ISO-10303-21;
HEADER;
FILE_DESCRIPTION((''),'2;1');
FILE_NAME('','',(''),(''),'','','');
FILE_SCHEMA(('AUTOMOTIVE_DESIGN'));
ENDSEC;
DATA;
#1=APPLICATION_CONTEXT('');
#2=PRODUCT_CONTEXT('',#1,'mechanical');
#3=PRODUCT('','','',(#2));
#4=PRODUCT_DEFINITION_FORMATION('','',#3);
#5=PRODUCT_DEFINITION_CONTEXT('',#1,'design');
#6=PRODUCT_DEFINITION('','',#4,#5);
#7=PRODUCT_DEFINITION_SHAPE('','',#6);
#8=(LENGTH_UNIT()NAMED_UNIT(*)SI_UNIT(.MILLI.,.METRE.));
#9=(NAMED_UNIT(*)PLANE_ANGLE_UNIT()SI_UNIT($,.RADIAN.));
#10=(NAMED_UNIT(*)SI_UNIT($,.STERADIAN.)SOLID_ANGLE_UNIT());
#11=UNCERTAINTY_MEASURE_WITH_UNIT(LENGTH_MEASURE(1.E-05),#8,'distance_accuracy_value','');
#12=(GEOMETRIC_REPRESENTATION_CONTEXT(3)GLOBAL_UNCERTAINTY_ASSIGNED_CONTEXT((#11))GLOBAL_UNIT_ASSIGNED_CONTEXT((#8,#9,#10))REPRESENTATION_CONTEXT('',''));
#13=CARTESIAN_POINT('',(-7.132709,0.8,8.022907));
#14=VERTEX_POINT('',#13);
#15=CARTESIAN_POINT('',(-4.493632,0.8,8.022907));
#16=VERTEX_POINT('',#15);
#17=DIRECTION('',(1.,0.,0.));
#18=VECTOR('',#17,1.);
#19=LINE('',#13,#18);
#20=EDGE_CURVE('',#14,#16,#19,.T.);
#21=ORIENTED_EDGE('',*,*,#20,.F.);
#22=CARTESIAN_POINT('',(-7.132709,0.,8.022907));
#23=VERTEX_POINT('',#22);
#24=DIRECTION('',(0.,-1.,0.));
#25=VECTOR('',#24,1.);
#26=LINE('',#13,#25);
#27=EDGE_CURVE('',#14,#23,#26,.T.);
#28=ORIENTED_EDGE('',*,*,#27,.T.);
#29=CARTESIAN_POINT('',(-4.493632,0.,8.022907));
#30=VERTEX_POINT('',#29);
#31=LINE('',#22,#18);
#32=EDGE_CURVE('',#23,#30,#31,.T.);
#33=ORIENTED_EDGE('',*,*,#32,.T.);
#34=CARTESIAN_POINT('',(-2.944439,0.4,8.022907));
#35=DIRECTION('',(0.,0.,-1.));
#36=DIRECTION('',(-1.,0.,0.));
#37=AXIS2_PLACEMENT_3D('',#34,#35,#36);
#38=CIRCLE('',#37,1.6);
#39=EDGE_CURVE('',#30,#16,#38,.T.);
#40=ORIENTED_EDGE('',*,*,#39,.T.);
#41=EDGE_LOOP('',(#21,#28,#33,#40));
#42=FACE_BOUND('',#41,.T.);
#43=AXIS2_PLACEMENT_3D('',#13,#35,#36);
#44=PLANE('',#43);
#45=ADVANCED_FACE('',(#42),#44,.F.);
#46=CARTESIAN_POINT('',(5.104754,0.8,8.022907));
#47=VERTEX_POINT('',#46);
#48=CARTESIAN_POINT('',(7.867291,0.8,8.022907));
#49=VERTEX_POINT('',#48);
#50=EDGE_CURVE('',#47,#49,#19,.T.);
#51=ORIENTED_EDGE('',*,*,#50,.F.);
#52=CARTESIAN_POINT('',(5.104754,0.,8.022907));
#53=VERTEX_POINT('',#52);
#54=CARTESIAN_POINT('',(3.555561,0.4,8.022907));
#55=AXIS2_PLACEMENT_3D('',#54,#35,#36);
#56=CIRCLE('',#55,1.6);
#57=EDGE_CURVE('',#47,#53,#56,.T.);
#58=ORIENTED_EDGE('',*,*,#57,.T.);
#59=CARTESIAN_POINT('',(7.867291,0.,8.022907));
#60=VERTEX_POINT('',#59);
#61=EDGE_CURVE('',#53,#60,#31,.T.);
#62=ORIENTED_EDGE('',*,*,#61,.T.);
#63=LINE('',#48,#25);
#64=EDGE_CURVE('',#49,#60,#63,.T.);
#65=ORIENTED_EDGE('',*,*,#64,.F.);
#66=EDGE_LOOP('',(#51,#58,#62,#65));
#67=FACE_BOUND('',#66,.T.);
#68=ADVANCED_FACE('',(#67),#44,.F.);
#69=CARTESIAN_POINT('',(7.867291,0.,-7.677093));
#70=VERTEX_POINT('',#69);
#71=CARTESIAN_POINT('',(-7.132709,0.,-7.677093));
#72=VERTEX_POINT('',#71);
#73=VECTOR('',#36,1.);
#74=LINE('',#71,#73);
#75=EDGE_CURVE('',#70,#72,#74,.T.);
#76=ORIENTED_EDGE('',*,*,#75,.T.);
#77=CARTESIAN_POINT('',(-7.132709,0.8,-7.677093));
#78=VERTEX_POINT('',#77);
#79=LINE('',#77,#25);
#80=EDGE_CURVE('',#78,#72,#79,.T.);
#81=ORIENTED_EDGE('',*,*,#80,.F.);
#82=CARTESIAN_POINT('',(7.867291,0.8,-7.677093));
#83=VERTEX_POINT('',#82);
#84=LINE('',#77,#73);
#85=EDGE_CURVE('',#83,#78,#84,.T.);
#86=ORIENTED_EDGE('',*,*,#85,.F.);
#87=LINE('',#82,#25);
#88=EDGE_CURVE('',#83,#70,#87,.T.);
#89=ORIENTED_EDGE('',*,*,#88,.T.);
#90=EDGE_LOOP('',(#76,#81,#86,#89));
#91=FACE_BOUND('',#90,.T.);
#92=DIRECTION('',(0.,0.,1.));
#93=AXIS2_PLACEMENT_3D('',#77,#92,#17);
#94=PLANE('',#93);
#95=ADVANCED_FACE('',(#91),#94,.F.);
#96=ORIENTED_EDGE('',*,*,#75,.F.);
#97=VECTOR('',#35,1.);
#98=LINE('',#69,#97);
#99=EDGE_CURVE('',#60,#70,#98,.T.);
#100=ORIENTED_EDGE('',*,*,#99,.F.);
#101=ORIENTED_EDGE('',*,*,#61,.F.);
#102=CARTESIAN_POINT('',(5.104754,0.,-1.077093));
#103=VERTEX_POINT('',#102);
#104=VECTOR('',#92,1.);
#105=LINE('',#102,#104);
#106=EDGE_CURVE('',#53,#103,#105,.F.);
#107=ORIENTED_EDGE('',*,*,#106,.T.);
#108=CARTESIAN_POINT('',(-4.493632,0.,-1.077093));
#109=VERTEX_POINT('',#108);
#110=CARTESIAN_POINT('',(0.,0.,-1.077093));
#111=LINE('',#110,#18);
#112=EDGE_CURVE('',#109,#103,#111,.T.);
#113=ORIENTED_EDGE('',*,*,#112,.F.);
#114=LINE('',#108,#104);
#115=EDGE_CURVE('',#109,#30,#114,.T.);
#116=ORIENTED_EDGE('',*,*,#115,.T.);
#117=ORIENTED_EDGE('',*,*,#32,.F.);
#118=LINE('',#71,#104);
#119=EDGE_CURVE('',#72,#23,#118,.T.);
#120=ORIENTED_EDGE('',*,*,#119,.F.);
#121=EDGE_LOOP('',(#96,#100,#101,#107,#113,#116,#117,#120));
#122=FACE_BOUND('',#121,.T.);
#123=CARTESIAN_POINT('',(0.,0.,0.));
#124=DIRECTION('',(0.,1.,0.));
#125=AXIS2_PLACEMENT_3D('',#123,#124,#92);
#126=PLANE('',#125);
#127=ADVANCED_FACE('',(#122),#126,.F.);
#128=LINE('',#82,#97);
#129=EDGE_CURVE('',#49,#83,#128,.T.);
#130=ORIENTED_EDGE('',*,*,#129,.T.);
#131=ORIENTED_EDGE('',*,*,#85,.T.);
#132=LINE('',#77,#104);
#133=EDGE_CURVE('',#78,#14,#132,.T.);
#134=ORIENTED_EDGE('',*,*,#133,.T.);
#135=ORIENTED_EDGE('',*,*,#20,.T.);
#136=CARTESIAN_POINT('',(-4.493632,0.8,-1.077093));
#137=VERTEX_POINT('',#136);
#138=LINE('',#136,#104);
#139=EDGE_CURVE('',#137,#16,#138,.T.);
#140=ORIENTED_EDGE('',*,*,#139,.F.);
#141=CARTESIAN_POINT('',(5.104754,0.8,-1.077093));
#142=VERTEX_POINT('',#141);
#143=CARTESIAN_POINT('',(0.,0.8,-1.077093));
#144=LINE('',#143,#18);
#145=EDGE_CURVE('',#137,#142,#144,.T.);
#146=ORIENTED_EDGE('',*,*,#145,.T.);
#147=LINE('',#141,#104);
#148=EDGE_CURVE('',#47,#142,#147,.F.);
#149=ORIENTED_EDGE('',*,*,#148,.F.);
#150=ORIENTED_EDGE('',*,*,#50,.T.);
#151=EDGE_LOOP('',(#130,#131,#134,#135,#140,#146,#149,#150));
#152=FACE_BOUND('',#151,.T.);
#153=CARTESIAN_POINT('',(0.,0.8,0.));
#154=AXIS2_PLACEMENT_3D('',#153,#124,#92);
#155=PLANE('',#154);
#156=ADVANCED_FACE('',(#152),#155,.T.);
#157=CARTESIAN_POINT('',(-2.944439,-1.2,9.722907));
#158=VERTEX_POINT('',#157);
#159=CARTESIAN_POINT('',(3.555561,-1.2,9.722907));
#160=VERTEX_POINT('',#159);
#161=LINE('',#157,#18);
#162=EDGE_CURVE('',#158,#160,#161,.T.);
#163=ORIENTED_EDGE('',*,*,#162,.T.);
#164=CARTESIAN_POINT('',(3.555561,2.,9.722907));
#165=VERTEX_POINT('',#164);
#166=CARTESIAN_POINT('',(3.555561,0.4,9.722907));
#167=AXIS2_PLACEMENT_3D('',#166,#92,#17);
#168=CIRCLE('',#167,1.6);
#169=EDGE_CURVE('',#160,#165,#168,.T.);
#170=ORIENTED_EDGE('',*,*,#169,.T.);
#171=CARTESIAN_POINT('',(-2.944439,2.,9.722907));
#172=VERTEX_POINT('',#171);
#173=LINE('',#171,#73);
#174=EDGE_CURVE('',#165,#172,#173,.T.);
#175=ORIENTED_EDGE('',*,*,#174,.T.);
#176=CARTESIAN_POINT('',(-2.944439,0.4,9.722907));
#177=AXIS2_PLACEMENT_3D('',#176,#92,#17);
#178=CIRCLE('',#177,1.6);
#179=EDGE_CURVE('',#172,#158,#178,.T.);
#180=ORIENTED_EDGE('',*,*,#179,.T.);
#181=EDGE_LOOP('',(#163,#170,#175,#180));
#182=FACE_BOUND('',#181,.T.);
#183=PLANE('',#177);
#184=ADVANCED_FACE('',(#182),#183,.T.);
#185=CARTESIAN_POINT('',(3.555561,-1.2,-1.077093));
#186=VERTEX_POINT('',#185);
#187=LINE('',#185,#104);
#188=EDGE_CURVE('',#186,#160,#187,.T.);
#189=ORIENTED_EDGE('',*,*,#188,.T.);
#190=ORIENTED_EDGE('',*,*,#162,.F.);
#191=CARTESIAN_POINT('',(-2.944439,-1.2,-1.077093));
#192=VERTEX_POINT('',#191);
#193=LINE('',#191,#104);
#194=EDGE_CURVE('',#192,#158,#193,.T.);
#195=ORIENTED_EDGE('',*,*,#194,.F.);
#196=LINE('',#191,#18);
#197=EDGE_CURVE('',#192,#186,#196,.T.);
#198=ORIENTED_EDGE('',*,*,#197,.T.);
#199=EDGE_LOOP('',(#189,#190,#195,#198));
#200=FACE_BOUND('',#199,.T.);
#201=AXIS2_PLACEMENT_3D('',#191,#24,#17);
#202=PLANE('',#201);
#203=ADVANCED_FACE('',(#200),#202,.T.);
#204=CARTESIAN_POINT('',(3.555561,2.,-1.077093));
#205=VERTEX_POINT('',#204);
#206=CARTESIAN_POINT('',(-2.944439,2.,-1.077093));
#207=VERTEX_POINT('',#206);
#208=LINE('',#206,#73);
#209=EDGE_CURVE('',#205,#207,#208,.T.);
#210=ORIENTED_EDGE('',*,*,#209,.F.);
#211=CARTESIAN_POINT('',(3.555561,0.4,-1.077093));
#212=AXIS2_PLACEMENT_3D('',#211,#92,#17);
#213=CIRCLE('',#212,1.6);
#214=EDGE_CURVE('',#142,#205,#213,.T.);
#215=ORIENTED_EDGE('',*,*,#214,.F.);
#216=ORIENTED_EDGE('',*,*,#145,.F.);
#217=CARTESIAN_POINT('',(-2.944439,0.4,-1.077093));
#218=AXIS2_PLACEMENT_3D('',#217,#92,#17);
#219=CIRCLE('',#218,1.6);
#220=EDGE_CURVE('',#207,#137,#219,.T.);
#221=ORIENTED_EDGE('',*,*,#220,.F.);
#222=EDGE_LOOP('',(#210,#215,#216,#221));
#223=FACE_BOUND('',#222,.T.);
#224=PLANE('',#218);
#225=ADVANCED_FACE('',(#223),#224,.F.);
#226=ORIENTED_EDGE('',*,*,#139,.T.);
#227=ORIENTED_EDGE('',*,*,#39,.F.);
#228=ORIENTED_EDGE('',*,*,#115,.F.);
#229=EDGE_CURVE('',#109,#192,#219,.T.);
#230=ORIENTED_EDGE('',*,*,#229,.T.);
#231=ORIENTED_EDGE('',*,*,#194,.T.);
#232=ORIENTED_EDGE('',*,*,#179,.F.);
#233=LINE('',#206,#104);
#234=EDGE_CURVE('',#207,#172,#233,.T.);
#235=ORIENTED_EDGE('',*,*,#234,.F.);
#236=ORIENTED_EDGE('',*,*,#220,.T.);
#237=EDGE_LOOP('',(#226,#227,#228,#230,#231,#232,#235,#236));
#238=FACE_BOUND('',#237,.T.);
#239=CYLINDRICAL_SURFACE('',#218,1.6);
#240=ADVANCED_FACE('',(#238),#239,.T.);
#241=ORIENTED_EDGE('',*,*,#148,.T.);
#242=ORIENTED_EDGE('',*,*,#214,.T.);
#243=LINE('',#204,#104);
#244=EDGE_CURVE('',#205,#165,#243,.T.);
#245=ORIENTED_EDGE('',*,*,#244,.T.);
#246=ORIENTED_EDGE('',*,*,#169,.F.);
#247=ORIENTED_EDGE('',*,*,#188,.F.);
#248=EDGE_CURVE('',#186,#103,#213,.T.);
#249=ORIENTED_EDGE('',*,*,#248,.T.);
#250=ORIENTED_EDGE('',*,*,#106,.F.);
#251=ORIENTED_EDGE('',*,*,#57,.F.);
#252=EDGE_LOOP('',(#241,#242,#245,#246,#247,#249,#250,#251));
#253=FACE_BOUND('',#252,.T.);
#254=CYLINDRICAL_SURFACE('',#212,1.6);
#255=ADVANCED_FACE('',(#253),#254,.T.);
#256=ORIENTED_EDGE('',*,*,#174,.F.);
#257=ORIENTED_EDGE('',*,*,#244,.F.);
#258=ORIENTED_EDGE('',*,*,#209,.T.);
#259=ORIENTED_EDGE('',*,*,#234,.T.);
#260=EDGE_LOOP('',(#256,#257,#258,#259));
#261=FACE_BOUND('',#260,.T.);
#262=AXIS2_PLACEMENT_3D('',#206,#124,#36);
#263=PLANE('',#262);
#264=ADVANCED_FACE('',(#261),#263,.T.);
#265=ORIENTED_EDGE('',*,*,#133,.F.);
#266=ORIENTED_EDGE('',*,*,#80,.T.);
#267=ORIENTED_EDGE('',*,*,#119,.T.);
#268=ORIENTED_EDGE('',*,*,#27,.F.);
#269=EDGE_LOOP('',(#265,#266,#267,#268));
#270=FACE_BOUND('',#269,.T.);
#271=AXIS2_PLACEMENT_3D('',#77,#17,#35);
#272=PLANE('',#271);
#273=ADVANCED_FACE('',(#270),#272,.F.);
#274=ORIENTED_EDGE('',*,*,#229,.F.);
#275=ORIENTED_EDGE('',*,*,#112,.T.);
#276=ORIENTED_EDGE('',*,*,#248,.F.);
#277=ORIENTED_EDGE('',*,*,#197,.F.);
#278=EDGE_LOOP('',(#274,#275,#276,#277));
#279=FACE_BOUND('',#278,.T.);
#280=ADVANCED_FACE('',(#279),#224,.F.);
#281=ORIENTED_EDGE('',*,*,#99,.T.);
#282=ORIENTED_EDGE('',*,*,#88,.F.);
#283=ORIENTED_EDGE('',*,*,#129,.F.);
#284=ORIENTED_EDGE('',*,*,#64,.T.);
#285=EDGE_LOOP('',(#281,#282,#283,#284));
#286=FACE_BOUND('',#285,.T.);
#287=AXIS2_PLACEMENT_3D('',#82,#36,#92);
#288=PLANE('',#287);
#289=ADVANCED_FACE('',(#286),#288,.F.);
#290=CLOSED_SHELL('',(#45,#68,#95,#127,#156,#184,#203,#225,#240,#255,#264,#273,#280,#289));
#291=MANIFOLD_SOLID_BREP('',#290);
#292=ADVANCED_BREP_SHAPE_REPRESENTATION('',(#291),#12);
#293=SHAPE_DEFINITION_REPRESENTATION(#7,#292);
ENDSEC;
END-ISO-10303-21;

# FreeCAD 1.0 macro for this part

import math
import FreeCAD as App
import Part
import Sketcher

V = App.Vector


def add_polygon(sketch, points):
    """Adds a closed chain of lines whose ends are joined by coincident constraints."""
    first, n = sketch.GeometryCount, len(points)
    for a, b in zip(points, points[1:] + points[:1]):
        sketch.addGeometry(Part.LineSegment(App.Vector(*a, 0), App.Vector(*b, 0)), False)
    for i in range(n):
        sketch.addConstraint(Sketcher.Constraint("Coincident", first + i, 2, first + (i + 1) % n, 1))

doc = App.newDocument("Part")
body = doc.addObject("PartDesign::Body", "Body")

sketch1 = body.newObject("Sketcher::SketchObject", "Sketch")
sketch1.AttachmentSupport = (doc.getObject("XZ_Plane"), [""])
sketch1.MapMode = "FlatFace"
add_polygon(sketch1, [(-7, -8), (-7, 8), (8, 8), (8, -8)])
sketch1.addConstraint([
    Sketcher.Constraint("Vertical", 0),
    Sketcher.Constraint("Horizontal", 1),
    Sketcher.Constraint("Vertical", 2),
    Sketcher.Constraint("Horizontal", 3),
    Sketcher.Constraint("DistanceX", 1, 1, 1, 2, 15.0),
    Sketcher.Constraint("DistanceY", 0, 1, 0, 2, 15.7),
    Sketcher.Constraint("DistanceX", 0, 2, -1, 1, 7.132709),
    Sketcher.Constraint("DistanceY", -1, 1, 0, 2, 8.022907),
])
pad1 = body.newObject("PartDesign::Pad", "Pad")
pad1.Profile = sketch1
pad1.Length = 0.8
pad1.Reversed = True

sketch2 = body.newObject("Sketcher::SketchObject", "Sketch001")
sketch2.AttachmentSupport = (doc.getObject("XY_Plane"), [""])
sketch2.MapMode = "FlatFace"
sketch2.AttachmentOffset = App.Placement(V(0, 0, 9.722907), App.Rotation())
sketch2.addGeometry([
    Part.LineSegment(V(3.6, 2, 0), V(-2.9, 2, 0)),
    Part.ArcOfCircle(Part.Circle(V(-2.9, 0.4, 0), V(0, 0, 1), 1.6), math.radians(90), math.radians(270)),
    Part.LineSegment(V(-2.9, -1.2, 0), V(3.6, -1.2, 0)),
    Part.ArcOfCircle(Part.Circle(V(3.6, 0.4, 0), V(0, 0, 1), 1.6), math.radians(-90), math.radians(90)),
], False)
sketch2.addConstraint([
    Sketcher.Constraint("Tangent", 0, 2, 1, 1),
    Sketcher.Constraint("Tangent", 1, 2, 2, 1),
    Sketcher.Constraint("Tangent", 2, 2, 3, 1),
    Sketcher.Constraint("Tangent", 3, 2, 0, 1),
    Sketcher.Constraint("Horizontal", 0),
    Sketcher.Constraint("Horizontal", 2),
    Sketcher.Constraint("Radius", 1, 1.6),
    Sketcher.Constraint("DistanceX", 0, 2, 0, 1, 6.5),
    Sketcher.Constraint("DistanceY", -1, 1, 0, 2, 2.0),
    Sketcher.Constraint("DistanceX", 1, 3, -1, 1, 2.944439),
])
pad2 = body.newObject("PartDesign::Pad", "Pad001")
pad2.Profile = sketch2
pad2.Length = 10.8
pad2.Reversed = True

doc.recompute()
